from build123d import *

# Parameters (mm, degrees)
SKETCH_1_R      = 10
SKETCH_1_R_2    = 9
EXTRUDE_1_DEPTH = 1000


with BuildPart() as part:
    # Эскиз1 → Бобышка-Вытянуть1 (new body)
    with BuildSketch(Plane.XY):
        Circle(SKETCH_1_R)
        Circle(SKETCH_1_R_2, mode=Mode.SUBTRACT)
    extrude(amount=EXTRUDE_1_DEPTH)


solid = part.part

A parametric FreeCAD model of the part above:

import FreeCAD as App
import Part
import Sketcher

doc = App.newDocument("Part")
body = doc.addObject("PartDesign::Body", "Body")

sketch1 = body.newObject("Sketcher::SketchObject", "Sketch")
sketch1.AttachmentSupport = (doc.getObject("XY_Plane"), [""])
sketch1.MapMode = "FlatFace"
sketch1.addGeometry(Part.Circle(App.Vector(0, 0, 0), App.Vector(0, 0, 1), 10), False)
sketch1.addGeometry(Part.Circle(App.Vector(0, 0, 0), App.Vector(0, 0, 1), 9), False)
sketch1.addConstraint(Sketcher.Constraint("Coincident", 0, 3, -1, 1))
sketch1.addConstraint(Sketcher.Constraint("Coincident", 1, 3, -1, 1))
sketch1.addConstraint(Sketcher.Constraint("Diameter", 0, 20.0))
sketch1.addConstraint(Sketcher.Constraint("Diameter", 1, 18.0))
pad1 = body.newObject("PartDesign::Pad", "Pad")
pad1.Profile = sketch1
pad1.Length = 1000

doc.recompute()
